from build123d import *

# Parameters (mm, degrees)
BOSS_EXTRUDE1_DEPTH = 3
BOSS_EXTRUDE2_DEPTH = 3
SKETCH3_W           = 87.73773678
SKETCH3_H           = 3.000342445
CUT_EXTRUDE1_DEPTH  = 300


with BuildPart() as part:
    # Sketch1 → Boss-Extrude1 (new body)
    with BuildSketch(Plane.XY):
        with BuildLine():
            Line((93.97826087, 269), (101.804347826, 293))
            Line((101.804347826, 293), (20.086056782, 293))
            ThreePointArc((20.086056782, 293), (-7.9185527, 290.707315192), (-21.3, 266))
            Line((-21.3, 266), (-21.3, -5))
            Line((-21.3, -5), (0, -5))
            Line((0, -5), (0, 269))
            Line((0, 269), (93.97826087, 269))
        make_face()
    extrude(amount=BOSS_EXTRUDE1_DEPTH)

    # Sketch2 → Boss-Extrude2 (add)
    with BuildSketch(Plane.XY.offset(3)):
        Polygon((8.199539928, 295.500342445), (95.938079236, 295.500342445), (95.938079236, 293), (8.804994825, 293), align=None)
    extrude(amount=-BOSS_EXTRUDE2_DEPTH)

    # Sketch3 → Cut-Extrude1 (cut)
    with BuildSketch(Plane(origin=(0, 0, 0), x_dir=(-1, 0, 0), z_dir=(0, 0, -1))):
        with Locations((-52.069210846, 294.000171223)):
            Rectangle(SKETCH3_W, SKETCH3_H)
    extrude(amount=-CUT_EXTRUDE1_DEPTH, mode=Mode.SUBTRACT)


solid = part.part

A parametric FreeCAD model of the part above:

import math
import FreeCAD as App
import Part
import Sketcher

V = App.Vector

doc = App.newDocument("Part")
body = doc.addObject("PartDesign::Body", "Body")

# Sketch on XY plane
sketch1 = doc.addObject("Sketcher::SketchObject", "Sketch")
body.addObject(sketch1)
sketch1.AttachmentSupport = (doc.XY_Plane, [""])
sketch1.MapMode = "FlatFace"
sketch1.addGeometry(Part.LineSegment(V(93.978261, 269, 0), V(101.804348, 293, 0)), False)
sketch1.addGeometry(Part.LineSegment(V(101.804348, 293, 0), V(20.086057, 293, 0)), False)
sketch1.addGeometry(Part.ArcOfCircle(Part.Circle(V(8.200342, 266, 0), V(0, 0, 1), 29.500342), math.radians(66.240347), math.radians(180)), False)
sketch1.addGeometry(Part.LineSegment(V(-21.3, 266, 0), V(-21.3, -5, 0)), False)
sketch1.addGeometry(Part.LineSegment(V(-21.3, -5, 0), V(0, -5, 0)), False)
sketch1.addGeometry(Part.LineSegment(V(0, -5, 0), V(0, 269, 0)), False)
sketch1.addGeometry(Part.LineSegment(V(0, 269, 0), V(93.978261, 269, 0)), False)
sketch1.addConstraint(Sketcher.Constraint("Coincident", 0, 2, 1, 1))
sketch1.addConstraint(Sketcher.Constraint("Coincident", 1, 2, 2, 1))
sketch1.addConstraint(Sketcher.Constraint("Tangent", 2, 2, 3, 1))
sketch1.addConstraint(Sketcher.Constraint("Coincident", 3, 2, 4, 1))
sketch1.addConstraint(Sketcher.Constraint("Coincident", 4, 2, 5, 1))
sketch1.addConstraint(Sketcher.Constraint("Coincident", 5, 2, 6, 1))
sketch1.addConstraint(Sketcher.Constraint("Coincident", 6, 2, 0, 1))
sketch1.addConstraint(Sketcher.Constraint("Horizontal", 1))
sketch1.addConstraint(Sketcher.Constraint("Vertical", 3))
sketch1.addConstraint(Sketcher.Constraint("Horizontal", 4))
sketch1.addConstraint(Sketcher.Constraint("Vertical", 5))
sketch1.addConstraint(Sketcher.Constraint("Horizontal", 6))
sketch1.addConstraint(Sketcher.Constraint("PointOnObject", 4, 2, -2))
sketch1.addConstraint(Sketcher.Constraint("DistanceY", 3, 2, 3, 1, 271.0))
sketch1.addConstraint(Sketcher.Constraint("DistanceY", 5, 1, 5, 2, 274.0))
sketch1.addConstraint(Sketcher.Constraint("DistanceX", 4, 1, 4, 2, 21.3))
sketch1.addConstraint(Sketcher.Constraint("DistanceY", -1, 1, 2, 3, 266.0))
sketch1.addConstraint(Sketcher.Constraint("DistanceY", -1, 1, 0, 2, 293.0))
sketch1.addConstraint(Sketcher.Constraint("Radius", 2, 29.500342))
sketch1.addConstraint(Sketcher.Constraint("DistanceX", 1, 2, 1, 1, 81.718291))
sketch1.addConstraint(Sketcher.Constraint("DistanceX", 6, 1, 6, 2, 93.978261))
pad1 = doc.addObject("PartDesign::Pad", "Pad")
body.addObject(pad1)
pad1.Profile = sketch1
pad1.Length = 3

# Sketch on XY plane
sketch2 = doc.addObject("Sketcher::SketchObject", "Sketch001")
body.addObject(sketch2)
sketch2.AttachmentSupport = (doc.XY_Plane, [""])
sketch2.MapMode = "FlatFace"
sketch2.AttachmentOffset = App.Placement(V(0, 0, 3), App.Rotation())
sketch2.addGeometry(Part.LineSegment(V(95.938079, 295.500342, 0), V(8.19954, 295.500342, 0)), False)
sketch2.addGeometry(Part.LineSegment(V(8.19954, 295.500342, 0), V(8.804995, 293, 0)), False)
sketch2.addGeometry(Part.LineSegment(V(8.804995, 293, 0), V(95.938079, 293, 0)), False)
sketch2.addGeometry(Part.LineSegment(V(95.938079, 293, 0), V(95.938079, 295.500342, 0)), False)
sketch2.addConstraint(Sketcher.Constraint("Coincident", 0, 2, 1, 1))
sketch2.addConstraint(Sketcher.Constraint("Coincident", 1, 2, 2, 1))
sketch2.addConstraint(Sketcher.Constraint("Coincident", 2, 2, 3, 1))
sketch2.addConstraint(Sketcher.Constraint("Coincident", 3, 2, 0, 1))
sketch2.addConstraint(Sketcher.Constraint("Horizontal", 0))
sketch2.addConstraint(Sketcher.Constraint("Horizontal", 2))
sketch2.addConstraint(Sketcher.Constraint("Vertical", 3))
sketch2.addConstraint(Sketcher.Constraint("DistanceY", -1, 1, 1, 2, 293.0))
sketch2.addConstraint(Sketcher.Constraint("DistanceX", 0, 2, 0, 1, 87.738539))
sketch2.addConstraint(Sketcher.Constraint("DistanceX", 2, 1, 2, 2, 87.133084))
sketch2.addConstraint(Sketcher.Constraint("DistanceY", 3, 1, 3, 2, 2.500342))
sketch2.addConstraint(Sketcher.Constraint("DistanceX", -1, 1, 0, 2, 8.19954))
pad2 = doc.addObject("PartDesign::Pad", "Pad001")
body.addObject(pad2)
pad2.Profile = sketch2
pad2.Length = 3
pad2.Reversed = True

# Sketch on XY plane
sketch3 = doc.addObject("Sketcher::SketchObject", "Sketch002")
body.addObject(sketch3)
sketch3.AttachmentSupport = (doc.XY_Plane, [""])
sketch3.MapMode = "FlatFace"
sketch3.addGeometry(Part.LineSegment(V(95.938079, 295.500342, 0), V(95.938079, 292.5, 0)), False)
sketch3.addGeometry(Part.LineSegment(V(95.938079, 292.5, 0), V(8.200342, 292.5, 0)), False)
sketch3.addGeometry(Part.LineSegment(V(8.200342, 292.5, 0), V(8.200342, 295.500342, 0)), False)
sketch3.addGeometry(Part.LineSegment(V(8.200342, 295.500342, 0), V(95.938079, 295.500342, 0)), False)
sketch3.addConstraint(Sketcher.Constraint("Coincident", 0, 2, 1, 1))
sketch3.addConstraint(Sketcher.Constraint("Coincident", 1, 2, 2, 1))
sketch3.addConstraint(Sketcher.Constraint("Coincident", 2, 2, 3, 1))
sketch3.addConstraint(Sketcher.Constraint("Coincident", 3, 2, 0, 1))
sketch3.addConstraint(Sketcher.Constraint("Vertical", 0))
sketch3.addConstraint(Sketcher.Constraint("Horizontal", 1))
sketch3.addConstraint(Sketcher.Constraint("Vertical", 2))
sketch3.addConstraint(Sketcher.Constraint("Horizontal", 3))
sketch3.addConstraint(Sketcher.Constraint("DistanceY", -1, 1, 0, 2, 292.5))
sketch3.addConstraint(Sketcher.Constraint("DistanceX", 1, 2, 1, 1, 87.737737))
sketch3.addConstraint(Sketcher.Constraint("DistanceY", 0, 2, 0, 1, 3.000342))
sketch3.addConstraint(Sketcher.Constraint("DistanceX", -1, 1, 0, 2, 95.938079))
pocket1 = doc.addObject("PartDesign::Pocket", "Pocket")
body.addObject(pocket1)
pocket1.Profile = sketch3
pocket1.Length = 300
pocket1.Reversed = True

doc.recompute()
